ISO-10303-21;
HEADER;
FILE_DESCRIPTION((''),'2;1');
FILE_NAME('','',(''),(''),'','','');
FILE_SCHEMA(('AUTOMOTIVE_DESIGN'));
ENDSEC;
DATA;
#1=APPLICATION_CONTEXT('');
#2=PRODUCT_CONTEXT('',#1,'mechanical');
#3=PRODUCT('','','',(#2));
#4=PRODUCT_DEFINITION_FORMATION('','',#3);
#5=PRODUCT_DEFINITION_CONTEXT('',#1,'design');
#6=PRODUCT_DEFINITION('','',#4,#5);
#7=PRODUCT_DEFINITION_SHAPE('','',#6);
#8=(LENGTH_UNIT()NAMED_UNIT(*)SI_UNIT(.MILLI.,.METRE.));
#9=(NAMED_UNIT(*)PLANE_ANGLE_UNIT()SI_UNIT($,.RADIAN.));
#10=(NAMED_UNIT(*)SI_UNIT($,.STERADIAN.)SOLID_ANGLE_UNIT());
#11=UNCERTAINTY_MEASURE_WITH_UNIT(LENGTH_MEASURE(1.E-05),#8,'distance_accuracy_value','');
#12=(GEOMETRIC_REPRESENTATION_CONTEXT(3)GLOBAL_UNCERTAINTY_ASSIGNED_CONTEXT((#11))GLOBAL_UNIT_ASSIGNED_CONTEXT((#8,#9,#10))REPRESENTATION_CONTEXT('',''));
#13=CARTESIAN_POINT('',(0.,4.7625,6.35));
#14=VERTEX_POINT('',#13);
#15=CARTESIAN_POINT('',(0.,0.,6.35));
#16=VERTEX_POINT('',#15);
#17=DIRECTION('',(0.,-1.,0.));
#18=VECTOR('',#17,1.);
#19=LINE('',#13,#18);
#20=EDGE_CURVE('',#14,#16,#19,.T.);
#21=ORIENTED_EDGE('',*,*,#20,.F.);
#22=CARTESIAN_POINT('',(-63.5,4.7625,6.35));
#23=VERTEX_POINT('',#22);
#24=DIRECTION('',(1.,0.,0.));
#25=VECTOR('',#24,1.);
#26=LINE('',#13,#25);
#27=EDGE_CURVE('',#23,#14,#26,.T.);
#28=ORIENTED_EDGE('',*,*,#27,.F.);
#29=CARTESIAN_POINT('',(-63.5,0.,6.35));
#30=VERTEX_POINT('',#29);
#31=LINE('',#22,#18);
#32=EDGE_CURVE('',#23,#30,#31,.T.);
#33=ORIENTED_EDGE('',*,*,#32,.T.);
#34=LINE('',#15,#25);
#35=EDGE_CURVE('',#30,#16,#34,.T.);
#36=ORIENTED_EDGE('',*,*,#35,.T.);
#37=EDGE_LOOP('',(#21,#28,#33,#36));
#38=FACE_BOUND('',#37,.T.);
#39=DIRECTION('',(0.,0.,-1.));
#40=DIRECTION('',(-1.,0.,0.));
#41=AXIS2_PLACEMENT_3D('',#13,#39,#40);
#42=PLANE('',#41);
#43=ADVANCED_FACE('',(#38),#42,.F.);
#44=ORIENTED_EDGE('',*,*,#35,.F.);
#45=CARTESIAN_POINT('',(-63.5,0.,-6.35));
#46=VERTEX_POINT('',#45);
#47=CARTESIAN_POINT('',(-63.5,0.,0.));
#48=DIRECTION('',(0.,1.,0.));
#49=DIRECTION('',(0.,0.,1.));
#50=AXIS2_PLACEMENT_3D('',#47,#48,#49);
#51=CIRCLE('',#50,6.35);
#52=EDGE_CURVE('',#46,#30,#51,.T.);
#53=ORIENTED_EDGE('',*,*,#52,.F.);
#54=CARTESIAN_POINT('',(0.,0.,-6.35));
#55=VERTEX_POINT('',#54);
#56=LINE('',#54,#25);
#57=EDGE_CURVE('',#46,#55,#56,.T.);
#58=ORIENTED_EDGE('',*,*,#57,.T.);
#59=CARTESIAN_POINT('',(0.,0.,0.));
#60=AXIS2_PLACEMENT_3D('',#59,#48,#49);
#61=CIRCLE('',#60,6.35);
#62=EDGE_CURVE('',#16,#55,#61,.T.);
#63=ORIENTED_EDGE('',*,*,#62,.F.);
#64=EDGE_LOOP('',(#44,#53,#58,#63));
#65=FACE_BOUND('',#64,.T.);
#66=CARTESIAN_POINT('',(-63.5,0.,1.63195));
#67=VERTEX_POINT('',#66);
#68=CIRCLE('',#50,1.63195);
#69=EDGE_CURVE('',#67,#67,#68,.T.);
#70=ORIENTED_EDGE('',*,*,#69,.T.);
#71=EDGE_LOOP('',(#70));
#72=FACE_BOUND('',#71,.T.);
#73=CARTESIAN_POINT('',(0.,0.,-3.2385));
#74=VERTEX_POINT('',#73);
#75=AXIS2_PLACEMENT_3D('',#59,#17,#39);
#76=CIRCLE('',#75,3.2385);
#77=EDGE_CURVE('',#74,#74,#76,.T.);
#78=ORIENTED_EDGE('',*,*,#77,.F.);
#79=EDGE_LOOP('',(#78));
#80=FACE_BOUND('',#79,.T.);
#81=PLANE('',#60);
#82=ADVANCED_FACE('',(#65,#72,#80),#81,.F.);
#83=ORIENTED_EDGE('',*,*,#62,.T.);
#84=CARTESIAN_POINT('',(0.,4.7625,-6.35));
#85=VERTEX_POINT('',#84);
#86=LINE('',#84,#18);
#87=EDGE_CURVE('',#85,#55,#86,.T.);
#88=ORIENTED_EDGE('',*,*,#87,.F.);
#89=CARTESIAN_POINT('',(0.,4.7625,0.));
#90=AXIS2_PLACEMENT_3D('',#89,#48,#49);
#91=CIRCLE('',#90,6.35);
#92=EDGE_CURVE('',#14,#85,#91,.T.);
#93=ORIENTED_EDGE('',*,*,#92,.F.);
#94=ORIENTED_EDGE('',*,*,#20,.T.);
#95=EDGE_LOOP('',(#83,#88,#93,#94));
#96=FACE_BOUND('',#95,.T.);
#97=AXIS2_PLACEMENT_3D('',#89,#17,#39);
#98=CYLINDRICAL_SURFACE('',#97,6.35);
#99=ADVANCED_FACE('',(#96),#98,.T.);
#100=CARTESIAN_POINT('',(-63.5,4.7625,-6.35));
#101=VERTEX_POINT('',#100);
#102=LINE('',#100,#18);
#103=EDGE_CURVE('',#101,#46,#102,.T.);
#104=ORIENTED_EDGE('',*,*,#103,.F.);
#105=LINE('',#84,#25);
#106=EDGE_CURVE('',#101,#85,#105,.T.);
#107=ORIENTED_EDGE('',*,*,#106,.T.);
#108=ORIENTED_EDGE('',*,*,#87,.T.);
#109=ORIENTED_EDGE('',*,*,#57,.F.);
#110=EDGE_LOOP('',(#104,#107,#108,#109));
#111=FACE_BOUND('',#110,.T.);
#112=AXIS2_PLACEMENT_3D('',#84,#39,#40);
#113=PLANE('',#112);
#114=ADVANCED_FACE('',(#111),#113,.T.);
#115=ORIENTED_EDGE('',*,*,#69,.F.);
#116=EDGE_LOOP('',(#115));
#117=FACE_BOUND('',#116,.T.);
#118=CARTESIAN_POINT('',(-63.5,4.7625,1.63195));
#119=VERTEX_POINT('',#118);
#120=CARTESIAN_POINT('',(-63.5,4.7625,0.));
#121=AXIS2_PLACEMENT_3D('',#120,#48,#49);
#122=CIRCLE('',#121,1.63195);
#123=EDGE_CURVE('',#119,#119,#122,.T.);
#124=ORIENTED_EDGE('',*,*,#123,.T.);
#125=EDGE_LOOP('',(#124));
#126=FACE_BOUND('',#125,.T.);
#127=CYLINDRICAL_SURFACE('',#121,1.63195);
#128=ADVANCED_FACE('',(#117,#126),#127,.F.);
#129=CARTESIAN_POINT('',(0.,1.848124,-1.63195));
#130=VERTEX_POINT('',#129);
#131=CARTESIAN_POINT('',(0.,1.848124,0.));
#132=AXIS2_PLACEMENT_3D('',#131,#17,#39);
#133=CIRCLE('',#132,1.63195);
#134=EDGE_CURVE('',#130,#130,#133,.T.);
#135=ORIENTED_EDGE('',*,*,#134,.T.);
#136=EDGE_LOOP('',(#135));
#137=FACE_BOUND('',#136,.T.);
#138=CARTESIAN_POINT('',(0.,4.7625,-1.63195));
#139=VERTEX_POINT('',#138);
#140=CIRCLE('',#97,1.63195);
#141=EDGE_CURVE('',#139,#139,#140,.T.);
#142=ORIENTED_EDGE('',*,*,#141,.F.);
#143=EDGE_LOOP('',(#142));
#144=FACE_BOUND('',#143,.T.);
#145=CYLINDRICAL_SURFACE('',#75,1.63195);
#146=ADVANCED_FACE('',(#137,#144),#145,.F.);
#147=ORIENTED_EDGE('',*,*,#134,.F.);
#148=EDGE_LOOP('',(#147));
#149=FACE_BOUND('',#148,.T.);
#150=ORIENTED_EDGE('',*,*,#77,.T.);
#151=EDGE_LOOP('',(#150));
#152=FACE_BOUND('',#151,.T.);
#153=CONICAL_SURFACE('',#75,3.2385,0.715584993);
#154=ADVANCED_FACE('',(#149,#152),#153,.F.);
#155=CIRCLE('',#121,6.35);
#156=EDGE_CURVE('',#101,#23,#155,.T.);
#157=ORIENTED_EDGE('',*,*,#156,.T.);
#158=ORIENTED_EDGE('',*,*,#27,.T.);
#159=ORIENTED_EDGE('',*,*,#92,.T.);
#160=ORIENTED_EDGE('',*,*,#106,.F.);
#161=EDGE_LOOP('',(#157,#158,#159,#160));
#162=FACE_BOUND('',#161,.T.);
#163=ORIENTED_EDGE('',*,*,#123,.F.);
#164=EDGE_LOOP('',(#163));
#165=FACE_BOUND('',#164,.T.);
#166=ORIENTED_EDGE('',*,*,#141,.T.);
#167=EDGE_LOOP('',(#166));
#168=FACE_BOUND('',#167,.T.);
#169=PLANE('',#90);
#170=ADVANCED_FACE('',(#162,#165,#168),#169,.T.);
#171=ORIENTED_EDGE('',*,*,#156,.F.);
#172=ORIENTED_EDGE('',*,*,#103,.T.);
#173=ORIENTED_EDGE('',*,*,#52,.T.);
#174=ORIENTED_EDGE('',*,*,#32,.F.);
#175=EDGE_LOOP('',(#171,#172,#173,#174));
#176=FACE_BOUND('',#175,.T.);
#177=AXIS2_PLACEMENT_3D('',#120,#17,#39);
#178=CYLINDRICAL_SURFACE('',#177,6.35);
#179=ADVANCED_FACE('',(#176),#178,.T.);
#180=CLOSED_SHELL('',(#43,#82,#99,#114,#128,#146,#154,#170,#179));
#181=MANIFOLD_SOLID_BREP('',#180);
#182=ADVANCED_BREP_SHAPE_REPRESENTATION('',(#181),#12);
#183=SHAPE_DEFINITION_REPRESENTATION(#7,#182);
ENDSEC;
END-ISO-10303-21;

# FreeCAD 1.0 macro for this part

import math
import FreeCAD as App
import Part
import Sketcher
Q = App.Units.Quantity

doc = App.newDocument("Part")
body = doc.addObject("PartDesign::Body", "Body")

sketch1 = body.newObject("Sketcher::SketchObject", "Sketch")
sketch1.AttachmentSupport = (doc.getObject("XZ_Plane"), [""])
sketch1.MapMode = "FlatFace"
sketch1.addGeometry([
    Part.LineSegment(App.Vector(0, -6.35, 0), App.Vector(-63.5, -6.35, 0)),
    Part.ArcOfCircle(Part.Circle(App.Vector(-63.5, 0, 0), App.Vector(0, 0, 1), 6.35), math.radians(90), math.radians(270)),
    Part.LineSegment(App.Vector(-63.5, 6.35, 0), App.Vector(0, 6.35, 0)),
    Part.ArcOfCircle(Part.Circle(App.Vector(0, 0, 0), App.Vector(0, 0, 1), 6.35), math.radians(-90), math.radians(90)),
], False)
sketch1.addConstraint([
    Sketcher.Constraint("Tangent", 0, 2, 1, 2),
    Sketcher.Constraint("Tangent", 1, 1, 2, 1),
    Sketcher.Constraint("Tangent", 2, 2, 3, 2),
    Sketcher.Constraint("Tangent", 3, 1, 0, 1),
    Sketcher.Constraint("Horizontal", 0),
    Sketcher.Constraint("Horizontal", 2),
    Sketcher.Constraint("Coincident", 3, 3, -1, 1),
    Sketcher.Constraint("Radius", 1, Q("0.25 in")),
    Sketcher.Constraint("DistanceX", 0, 2, 0, 1, Q("2.5 in")),
])
pad1 = body.newObject("PartDesign::Pad", "Pad")
pad1.Profile = sketch1
pad1.Length = Q("0.1875 in")
pad1.Reversed = True

sketch2 = body.newObject("Sketcher::SketchObject", "Sketch001")
sketch2.AttachmentSupport = (doc.getObject("XZ_Plane"), [""])
sketch2.MapMode = "FlatFace"
sketch2.AttachmentOffset = App.Placement(App.Vector(0, 0, -0.1875 * 25.4), App.Rotation())
sketch2.addGeometry(Part.Circle(App.Vector(-63.5, 0, 0), App.Vector(0, 0, 1), 1.63195), False)
sketch2.addConstraint([
    Sketcher.Constraint("PointOnObject", 0, 3, -1),
    Sketcher.Constraint("Diameter", 0, Q("0.1285 in")),
    Sketcher.Constraint("DistanceX", 0, 3, -1, 1, Q("2.5 in")),
])
doc.recompute()
hole = body.newObject("PartDesign::Hole", "Hole")
hole.Profile = sketch2
hole.ThreadType = "None"
hole.Diameter = Q("0.1285 in")
hole.DepthType = "ThroughAll"
hole.Reversed = True

sketch3 = body.newObject("Sketcher::SketchObject", "Sketch002")
sketch3.AttachmentSupport = (doc.getObject("XZ_Plane"), [""])
sketch3.MapMode = "FlatFace"
sketch3.addGeometry(Part.Circle(App.Vector(0, 0, 0), App.Vector(0, 0, 1), 1.63195), False)
sketch3.addConstraint([
    Sketcher.Constraint("Coincident", 0, 3, -1, 1),
    Sketcher.Constraint("Diameter", 0, Q("0.1285 in")),
])
doc.recompute()
hole2 = body.newObject("PartDesign::Hole", "Hole001")
hole2.Profile = sketch3
hole2.ThreadType = "None"
hole2.Diameter = Q("0.1285 in")
hole2.DepthType = "ThroughAll"
hole2.HoleCutType = "Countersink"
hole2.HoleCutDiameter = Q("0.255 in")
hole2.HoleCutCountersinkAngle = 82

doc.recompute()
